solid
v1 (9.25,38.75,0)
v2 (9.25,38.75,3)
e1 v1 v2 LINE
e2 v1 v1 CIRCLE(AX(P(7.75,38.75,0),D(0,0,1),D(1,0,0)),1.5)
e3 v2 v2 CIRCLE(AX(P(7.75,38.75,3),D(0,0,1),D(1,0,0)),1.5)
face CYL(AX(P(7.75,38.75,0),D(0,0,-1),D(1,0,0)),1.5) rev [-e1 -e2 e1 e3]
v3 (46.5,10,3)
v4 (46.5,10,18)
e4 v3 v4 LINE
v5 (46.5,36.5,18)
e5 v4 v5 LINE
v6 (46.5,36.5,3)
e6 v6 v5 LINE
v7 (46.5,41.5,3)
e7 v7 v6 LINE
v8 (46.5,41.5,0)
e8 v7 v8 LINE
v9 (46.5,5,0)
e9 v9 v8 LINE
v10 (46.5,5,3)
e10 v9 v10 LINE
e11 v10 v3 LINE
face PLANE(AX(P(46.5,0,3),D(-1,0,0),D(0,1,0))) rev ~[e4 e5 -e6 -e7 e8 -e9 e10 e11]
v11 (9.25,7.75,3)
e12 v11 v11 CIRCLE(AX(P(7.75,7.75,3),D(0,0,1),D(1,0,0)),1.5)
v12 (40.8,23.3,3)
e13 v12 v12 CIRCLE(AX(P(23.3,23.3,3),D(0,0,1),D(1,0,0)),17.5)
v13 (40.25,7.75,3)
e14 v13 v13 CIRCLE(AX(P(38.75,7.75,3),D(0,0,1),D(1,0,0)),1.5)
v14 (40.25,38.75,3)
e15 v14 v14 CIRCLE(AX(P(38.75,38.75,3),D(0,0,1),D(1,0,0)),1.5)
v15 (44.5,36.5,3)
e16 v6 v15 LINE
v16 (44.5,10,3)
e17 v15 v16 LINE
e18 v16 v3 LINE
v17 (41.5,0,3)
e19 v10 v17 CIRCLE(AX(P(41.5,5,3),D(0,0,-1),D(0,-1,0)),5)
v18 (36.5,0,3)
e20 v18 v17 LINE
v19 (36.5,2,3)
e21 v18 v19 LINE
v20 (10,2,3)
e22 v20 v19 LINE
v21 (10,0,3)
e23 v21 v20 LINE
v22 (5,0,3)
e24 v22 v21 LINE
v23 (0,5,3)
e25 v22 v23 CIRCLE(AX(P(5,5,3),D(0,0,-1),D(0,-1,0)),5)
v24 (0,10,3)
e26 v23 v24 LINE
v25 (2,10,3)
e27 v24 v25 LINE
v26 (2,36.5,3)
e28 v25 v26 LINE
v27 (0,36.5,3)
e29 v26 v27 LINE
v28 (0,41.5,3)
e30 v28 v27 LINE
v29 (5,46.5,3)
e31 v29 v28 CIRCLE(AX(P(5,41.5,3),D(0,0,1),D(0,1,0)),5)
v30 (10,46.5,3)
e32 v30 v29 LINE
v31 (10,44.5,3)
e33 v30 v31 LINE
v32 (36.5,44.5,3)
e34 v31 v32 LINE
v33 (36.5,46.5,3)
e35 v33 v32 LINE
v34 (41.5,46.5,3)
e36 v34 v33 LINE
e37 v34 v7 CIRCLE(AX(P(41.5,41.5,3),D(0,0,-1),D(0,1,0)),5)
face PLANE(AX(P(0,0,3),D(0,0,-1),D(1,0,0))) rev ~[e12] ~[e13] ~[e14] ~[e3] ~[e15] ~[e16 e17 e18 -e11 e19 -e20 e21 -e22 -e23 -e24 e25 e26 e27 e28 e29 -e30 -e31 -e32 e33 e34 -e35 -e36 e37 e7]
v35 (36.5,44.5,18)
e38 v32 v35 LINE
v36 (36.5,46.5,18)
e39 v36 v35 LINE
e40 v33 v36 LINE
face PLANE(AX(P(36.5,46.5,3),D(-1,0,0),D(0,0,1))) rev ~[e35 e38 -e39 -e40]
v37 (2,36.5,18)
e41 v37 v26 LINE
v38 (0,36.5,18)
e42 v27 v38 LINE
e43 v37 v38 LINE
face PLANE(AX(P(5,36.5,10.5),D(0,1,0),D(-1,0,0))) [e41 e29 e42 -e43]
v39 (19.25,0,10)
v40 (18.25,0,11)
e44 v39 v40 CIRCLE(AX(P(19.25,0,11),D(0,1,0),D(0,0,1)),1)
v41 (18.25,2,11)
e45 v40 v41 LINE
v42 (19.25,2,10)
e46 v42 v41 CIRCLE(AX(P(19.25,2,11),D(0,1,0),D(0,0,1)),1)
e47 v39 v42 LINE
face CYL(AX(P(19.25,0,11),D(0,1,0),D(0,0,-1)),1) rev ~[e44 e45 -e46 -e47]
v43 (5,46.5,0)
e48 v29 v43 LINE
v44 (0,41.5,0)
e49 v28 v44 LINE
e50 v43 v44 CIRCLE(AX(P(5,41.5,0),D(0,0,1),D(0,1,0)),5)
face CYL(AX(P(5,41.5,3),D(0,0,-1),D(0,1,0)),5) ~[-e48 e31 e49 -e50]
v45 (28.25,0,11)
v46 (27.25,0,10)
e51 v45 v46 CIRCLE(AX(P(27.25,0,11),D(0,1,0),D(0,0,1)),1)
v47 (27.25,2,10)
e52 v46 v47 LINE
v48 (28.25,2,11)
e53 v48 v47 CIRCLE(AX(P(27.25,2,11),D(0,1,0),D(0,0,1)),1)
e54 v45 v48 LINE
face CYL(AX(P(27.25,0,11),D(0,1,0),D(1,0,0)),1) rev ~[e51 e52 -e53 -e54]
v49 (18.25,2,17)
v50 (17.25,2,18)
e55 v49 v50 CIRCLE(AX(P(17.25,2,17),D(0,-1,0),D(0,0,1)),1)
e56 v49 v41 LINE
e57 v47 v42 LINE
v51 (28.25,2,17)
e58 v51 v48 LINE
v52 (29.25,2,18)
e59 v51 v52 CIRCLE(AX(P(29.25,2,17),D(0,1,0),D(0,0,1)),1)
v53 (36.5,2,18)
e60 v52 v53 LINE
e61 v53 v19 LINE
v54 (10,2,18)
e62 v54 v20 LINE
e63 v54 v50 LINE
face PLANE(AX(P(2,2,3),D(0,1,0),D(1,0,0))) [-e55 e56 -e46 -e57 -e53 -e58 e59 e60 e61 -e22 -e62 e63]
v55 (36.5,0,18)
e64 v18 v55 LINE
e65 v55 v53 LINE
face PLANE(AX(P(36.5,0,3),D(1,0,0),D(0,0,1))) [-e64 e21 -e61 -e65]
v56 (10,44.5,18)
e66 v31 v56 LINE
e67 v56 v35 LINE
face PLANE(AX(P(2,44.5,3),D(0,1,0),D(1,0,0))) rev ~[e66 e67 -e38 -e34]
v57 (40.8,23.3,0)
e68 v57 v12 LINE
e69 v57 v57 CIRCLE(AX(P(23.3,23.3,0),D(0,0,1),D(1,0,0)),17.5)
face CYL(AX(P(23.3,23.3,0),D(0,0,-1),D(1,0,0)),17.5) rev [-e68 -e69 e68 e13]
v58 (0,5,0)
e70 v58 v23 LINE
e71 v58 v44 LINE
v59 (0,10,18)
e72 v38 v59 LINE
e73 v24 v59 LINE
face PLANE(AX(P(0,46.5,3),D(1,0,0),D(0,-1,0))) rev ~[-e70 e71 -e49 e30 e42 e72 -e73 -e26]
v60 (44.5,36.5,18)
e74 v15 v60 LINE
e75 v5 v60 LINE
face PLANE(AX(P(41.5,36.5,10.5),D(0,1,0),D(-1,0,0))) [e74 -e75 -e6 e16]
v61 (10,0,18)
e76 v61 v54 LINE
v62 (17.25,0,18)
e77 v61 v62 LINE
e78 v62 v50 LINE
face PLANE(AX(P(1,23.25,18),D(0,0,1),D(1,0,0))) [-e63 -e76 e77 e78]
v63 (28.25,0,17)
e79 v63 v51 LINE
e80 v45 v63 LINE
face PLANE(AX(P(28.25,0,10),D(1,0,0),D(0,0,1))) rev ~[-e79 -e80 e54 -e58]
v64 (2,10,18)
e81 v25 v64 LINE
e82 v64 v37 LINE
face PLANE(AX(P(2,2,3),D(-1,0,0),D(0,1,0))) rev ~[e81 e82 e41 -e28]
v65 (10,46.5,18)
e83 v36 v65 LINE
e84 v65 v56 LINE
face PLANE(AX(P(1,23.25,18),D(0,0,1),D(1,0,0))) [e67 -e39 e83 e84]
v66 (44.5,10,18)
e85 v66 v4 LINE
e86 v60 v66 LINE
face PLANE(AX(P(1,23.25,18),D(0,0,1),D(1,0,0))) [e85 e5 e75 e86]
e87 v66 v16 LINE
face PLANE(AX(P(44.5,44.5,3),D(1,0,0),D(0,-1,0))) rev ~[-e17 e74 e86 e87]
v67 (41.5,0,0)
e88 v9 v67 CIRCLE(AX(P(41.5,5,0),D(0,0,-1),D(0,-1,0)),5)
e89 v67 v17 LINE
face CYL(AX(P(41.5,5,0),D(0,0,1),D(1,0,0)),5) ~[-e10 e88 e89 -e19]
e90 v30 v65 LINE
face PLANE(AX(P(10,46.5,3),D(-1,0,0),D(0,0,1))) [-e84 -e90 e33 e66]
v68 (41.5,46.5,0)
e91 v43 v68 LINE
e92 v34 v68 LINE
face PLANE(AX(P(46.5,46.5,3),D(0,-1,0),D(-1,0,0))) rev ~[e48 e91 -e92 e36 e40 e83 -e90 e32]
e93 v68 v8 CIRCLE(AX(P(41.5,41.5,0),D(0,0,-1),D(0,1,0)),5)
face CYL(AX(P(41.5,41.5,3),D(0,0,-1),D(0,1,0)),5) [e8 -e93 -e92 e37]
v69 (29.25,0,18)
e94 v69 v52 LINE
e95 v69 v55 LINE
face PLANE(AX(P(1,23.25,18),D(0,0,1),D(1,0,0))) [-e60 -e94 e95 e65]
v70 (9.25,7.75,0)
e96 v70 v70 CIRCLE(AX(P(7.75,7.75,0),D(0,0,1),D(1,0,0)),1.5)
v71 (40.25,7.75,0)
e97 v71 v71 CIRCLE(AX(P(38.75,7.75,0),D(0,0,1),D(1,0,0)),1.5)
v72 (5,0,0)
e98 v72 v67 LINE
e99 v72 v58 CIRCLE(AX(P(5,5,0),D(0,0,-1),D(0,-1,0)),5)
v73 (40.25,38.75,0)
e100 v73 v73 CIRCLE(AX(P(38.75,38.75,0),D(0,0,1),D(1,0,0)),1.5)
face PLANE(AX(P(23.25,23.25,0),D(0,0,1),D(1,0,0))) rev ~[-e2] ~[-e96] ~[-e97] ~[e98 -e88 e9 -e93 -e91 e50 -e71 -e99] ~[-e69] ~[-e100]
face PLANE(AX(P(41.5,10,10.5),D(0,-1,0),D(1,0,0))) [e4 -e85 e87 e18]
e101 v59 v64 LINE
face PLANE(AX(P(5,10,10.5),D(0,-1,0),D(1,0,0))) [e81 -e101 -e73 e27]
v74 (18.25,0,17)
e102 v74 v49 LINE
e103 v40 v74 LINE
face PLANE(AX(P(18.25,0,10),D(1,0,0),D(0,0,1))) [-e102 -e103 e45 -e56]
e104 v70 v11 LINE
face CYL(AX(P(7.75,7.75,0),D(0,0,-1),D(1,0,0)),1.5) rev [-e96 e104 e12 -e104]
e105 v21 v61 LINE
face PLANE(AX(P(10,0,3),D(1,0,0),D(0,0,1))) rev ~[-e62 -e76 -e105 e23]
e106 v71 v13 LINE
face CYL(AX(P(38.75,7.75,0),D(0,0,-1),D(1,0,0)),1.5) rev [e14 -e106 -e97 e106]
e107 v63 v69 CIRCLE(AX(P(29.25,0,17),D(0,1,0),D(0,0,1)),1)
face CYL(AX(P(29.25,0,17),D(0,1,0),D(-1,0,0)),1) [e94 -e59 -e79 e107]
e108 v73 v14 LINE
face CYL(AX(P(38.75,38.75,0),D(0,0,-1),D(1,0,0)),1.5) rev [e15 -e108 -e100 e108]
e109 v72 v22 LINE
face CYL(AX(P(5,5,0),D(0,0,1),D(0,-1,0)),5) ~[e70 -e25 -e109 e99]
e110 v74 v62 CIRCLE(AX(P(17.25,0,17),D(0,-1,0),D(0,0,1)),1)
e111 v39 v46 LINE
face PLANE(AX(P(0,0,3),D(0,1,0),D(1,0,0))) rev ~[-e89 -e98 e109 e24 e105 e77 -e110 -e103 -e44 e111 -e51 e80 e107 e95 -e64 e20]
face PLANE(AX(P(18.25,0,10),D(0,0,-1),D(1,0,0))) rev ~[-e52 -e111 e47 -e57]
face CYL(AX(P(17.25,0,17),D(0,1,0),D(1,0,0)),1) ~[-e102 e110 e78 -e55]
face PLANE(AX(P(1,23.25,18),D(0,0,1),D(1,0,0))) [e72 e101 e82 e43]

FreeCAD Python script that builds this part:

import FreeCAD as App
import Part
import Sketcher
from FreeCAD import Vector


def edges_at(feature, points):
    """Names of the edges that pass closest to the given points."""
    edges = feature.Shape.Edges
    near = lambda p: min(range(len(edges)), key=lambda i: edges[i].distToShape(Part.Vertex(*p))[0])
    return sorted({f"Edge{near(p) + 1}" for p in points})

doc = App.newDocument("Part")
params = doc.addObject("Spreadsheet::Sheet", "Params")
for row, (alias, value) in enumerate([
    ("sketch1_diameter", "3 mm"),
    ("sketch1_diameter2", "35 mm"),
    ("sketch1_width", "46.5 mm"),
    ("pad1_length", "3 mm"),
    ("sketch2_width", "46.5 mm"),
    ("sketch2_width2", "42.5 mm"),
    ("pad2_length", "15 mm"),
    ("sketch3_width", "10 mm"),
    ("sketch3_height", "15 mm"),
    ("pocket1_length", "10 mm"),
    ("sketch4_width", "10 mm"),
    ("sketch4_height", "15 mm"),
    ("pocket2_length", "10 mm"),
    ("sketch5_width", "10 mm"),
    ("sketch5_height", "15 mm"),
    ("pocket3_length", "10 mm"),
    ("sketch6_width", "10 mm"),
    ("sketch6_height", "15 mm"),
    ("pocket4_length", "10 mm"),
    ("fillet_radius", "5 mm"),
    ("fillet2_radius", "5 mm"),
    ("fillet3_radius", "5 mm"),
    ("fillet4_radius", "5 mm"),
    ("sketch7_width", "10 mm"),
    ("sketch7_height", "8 mm"),
    ("pocket5_length", "25 mm"),
    ("fillet5_radius", "1 mm"),
    ("fillet6_radius", "1 mm"),
], start=1):
    params.set(f"A{row}", alias)
    params.set(f"B{row}", "=" + value)
    params.setAlias(f"B{row}", alias)

body = doc.addObject("PartDesign::Body", "Body")

# Sketch on XY plane
sketch1 = doc.addObject("Sketcher::SketchObject", "Sketch")
body.addObject(sketch1)
sketch1.AttachmentSupport = (doc.XY_Plane, [""])
sketch1.MapMode = "FlatFace"
sketch1.addGeometry([
    Part.LineSegment(Vector(0, 46.5, 0), Vector(0, 0, 0)),  # 0
    Part.LineSegment(Vector(0, 0, 0), Vector(46.5, 0, 0)),  # 1
    Part.LineSegment(Vector(46.5, 0, 0), Vector(46.5, 46.5, 0)),  # 2
    Part.LineSegment(Vector(46.5, 46.5, 0), Vector(0, 46.5, 0)),  # 3
    Part.Circle(Vector(7.75, 7.75, 0), Vector(0, 0, 1), 1.5),  # 4
    Part.Circle(Vector(38.75, 7.75, 0), Vector(0, 0, 1), 1.5),  # 5
    Part.Circle(Vector(7.75, 38.75, 0), Vector(0, 0, 1), 1.5),  # 6
    Part.Circle(Vector(23.3, 23.3, 0), Vector(0, 0, 1), 17.5),  # 7
    Part.Circle(Vector(38.75, 38.75, 0), Vector(0, 0, 1), 1.5),  # 8
], False)
sketch1.addConstraint([
    Sketcher.Constraint("Coincident", 0, 2, 1, 1),
    Sketcher.Constraint("Coincident", 1, 2, 2, 1),
    Sketcher.Constraint("Coincident", 2, 2, 3, 1),
    Sketcher.Constraint("Coincident", 3, 2, 0, 1),
    Sketcher.Constraint("Vertical", 0),
    Sketcher.Constraint("Horizontal", 1),
    Sketcher.Constraint("Vertical", 2),
    Sketcher.Constraint("Horizontal", 3),
    Sketcher.Constraint("Coincident", 0, 2, -1, 1),
    Sketcher.Constraint("Equal", 4, 5),
    Sketcher.Constraint("Equal", 5, 6),
    Sketcher.Constraint("Equal", 6, 8),
    Sketcher.Constraint("Horizontal", 4, 3, 5, 3),
    Sketcher.Constraint("Horizontal", 6, 3, 8, 3),
    Sketcher.Constraint("Vertical", 4, 3, 6, 3),
    Sketcher.Constraint("Vertical", 5, 3, 8, 3),
    Sketcher.Constraint("Equal", 3, 0),
    Sketcher.Constraint("Diameter", 4, 3.0),
    Sketcher.Constraint("Diameter", 7, 35.0),
    Sketcher.Constraint("DistanceX", 1, 1, 1, 2, 46.5),
    Sketcher.Constraint("DistanceX", 4, 3, 5, 3, 31.0),
    Sketcher.Constraint("DistanceY", 4, 3, 6, 3, 31.0),
    Sketcher.Constraint("DistanceX", -1, 1, 7, 3, 23.3),
    Sketcher.Constraint("DistanceY", -1, 1, 7, 3, 23.3),
    Sketcher.Constraint("DistanceX", -1, 1, 4, 3, 7.75),
    Sketcher.Constraint("DistanceY", -1, 1, 4, 3, 7.75),
])
sketch1.setExpression("Constraints[17]", "Params.sketch1_diameter")
sketch1.setExpression("Constraints[18]", "Params.sketch1_diameter2")
sketch1.setExpression("Constraints[19]", "Params.sketch1_width")
pad1 = doc.addObject("PartDesign::Pad", "Pad")
body.addObject(pad1)
pad1.Profile = sketch1
pad1.setExpression("Length", "Params.pad1_length")

# Sketch on XY plane
sketch2 = doc.addObject("Sketcher::SketchObject", "Sketch001")
body.addObject(sketch2)
sketch2.AttachmentSupport = (doc.XY_Plane, [""])
sketch2.MapMode = "FlatFace"
sketch2.AttachmentOffset = App.Placement(Vector(0, 0, 3), App.Rotation())
sketch2.addGeometry([
    Part.LineSegment(Vector(0, 46.5, 0), Vector(0, 0, 0)),  # 0
    Part.LineSegment(Vector(0, 0, 0), Vector(46.5, 0, 0)),  # 1
    Part.LineSegment(Vector(46.5, 0, 0), Vector(46.5, 46.5, 0)),  # 2
    Part.LineSegment(Vector(46.5, 46.5, 0), Vector(0, 46.5, 0)),  # 3
    Part.LineSegment(Vector(2, 2, 0), Vector(2, 44.5, 0)),  # 4
    Part.LineSegment(Vector(2, 44.5, 0), Vector(44.5, 44.5, 0)),  # 5
    Part.LineSegment(Vector(44.5, 44.5, 0), Vector(44.5, 2, 0)),  # 6
    Part.LineSegment(Vector(44.5, 2, 0), Vector(2, 2, 0)),  # 7
], False)
sketch2.addConstraint([
    Sketcher.Constraint("Coincident", 0, 2, 1, 1),
    Sketcher.Constraint("Coincident", 1, 2, 2, 1),
    Sketcher.Constraint("Coincident", 2, 2, 3, 1),
    Sketcher.Constraint("Coincident", 3, 2, 0, 1),
    Sketcher.Constraint("Coincident", 4, 2, 5, 1),
    Sketcher.Constraint("Coincident", 5, 2, 6, 1),
    Sketcher.Constraint("Coincident", 6, 2, 7, 1),
    Sketcher.Constraint("Coincident", 7, 2, 4, 1),
    Sketcher.Constraint("Vertical", 0),
    Sketcher.Constraint("Horizontal", 1),
    Sketcher.Constraint("Vertical", 2),
    Sketcher.Constraint("Horizontal", 3),
    Sketcher.Constraint("Vertical", 4),
    Sketcher.Constraint("Horizontal", 5),
    Sketcher.Constraint("Vertical", 6),
    Sketcher.Constraint("Horizontal", 7),
    Sketcher.Constraint("Coincident", 0, 2, -1, 1),
    Sketcher.Constraint("Equal", 3, 0),
    Sketcher.Constraint("Equal", 7, 4),
    Sketcher.Constraint("DistanceX", 1, 1, 1, 2, 46.5),
    Sketcher.Constraint("DistanceX", 5, 1, 5, 2, 42.5),
    Sketcher.Constraint("DistanceX", -1, 1, 4, 2, 2.0),
    Sketcher.Constraint("DistanceY", -1, 1, 6, 2, 2.0),
])
sketch2.setExpression("Constraints[19]", "Params.sketch2_width")
sketch2.setExpression("Constraints[20]", "Params.sketch2_width2")
pad2 = doc.addObject("PartDesign::Pad", "Pad001")
body.addObject(pad2)
pad2.Profile = sketch2
pad2.setExpression("Length", "Params.pad2_length")

# Sketch on XZ plane
sketch3 = doc.addObject("Sketcher::SketchObject", "Sketch002")
body.addObject(sketch3)
sketch3.AttachmentSupport = (doc.XZ_Plane, [""])
sketch3.MapMode = "FlatFace"
sketch3.addGeometry([
    Part.LineSegment(Vector(0, 18, 0), Vector(0, 3, 0)),
    Part.LineSegment(Vector(0, 3, 0), Vector(10, 3, 0)),
    Part.LineSegment(Vector(10, 3, 0), Vector(10, 18, 0)),
    Part.LineSegment(Vector(10, 18, 0), Vector(0, 18, 0)),
], False)
sketch3.addConstraint([
    Sketcher.Constraint("Coincident", 0, 2, 1, 1),
    Sketcher.Constraint("Coincident", 1, 2, 2, 1),
    Sketcher.Constraint("Coincident", 2, 2, 3, 1),
    Sketcher.Constraint("Coincident", 3, 2, 0, 1),
    Sketcher.Constraint("Vertical", 0),
    Sketcher.Constraint("Horizontal", 1),
    Sketcher.Constraint("Vertical", 2),
    Sketcher.Constraint("Horizontal", 3),
    Sketcher.Constraint("PointOnObject", 0, 2, -2),
    Sketcher.Constraint("DistanceX", 1, 1, 1, 2, 10.0),
    Sketcher.Constraint("DistanceY", 0, 2, 0, 1, 15.0),
    Sketcher.Constraint("DistanceY", -1, 1, 0, 2, 3.0),
])
sketch3.setExpression("Constraints[9]", "Params.sketch3_width")
sketch3.setExpression("Constraints[10]", "Params.sketch3_height")
pocket1 = doc.addObject("PartDesign::Pocket", "Pocket")
body.addObject(pocket1)
pocket1.Profile = sketch3
pocket1.setExpression("Length", "Params.pocket1_length")

# Sketch on XZ plane
sketch4 = doc.addObject("Sketcher::SketchObject", "Sketch003")
body.addObject(sketch4)
sketch4.AttachmentSupport = (doc.XZ_Plane, [""])
sketch4.MapMode = "FlatFace"
sketch4.AttachmentOffset = App.Placement(Vector(0, 0, -46.5), App.Rotation())
sketch4.addGeometry([
    Part.LineSegment(Vector(10, 18, 0), Vector(10, 3, 0)),
    Part.LineSegment(Vector(10, 3, 0), Vector(0, 3, 0)),
    Part.LineSegment(Vector(0, 3, 0), Vector(0, 18, 0)),
    Part.LineSegment(Vector(0, 18, 0), Vector(10, 18, 0)),
], False)
sketch4.addConstraint([
    Sketcher.Constraint("Coincident", 0, 2, 1, 1),
    Sketcher.Constraint("Coincident", 1, 2, 2, 1),
    Sketcher.Constraint("Coincident", 2, 2, 3, 1),
    Sketcher.Constraint("Coincident", 3, 2, 0, 1),
    Sketcher.Constraint("Vertical", 0),
    Sketcher.Constraint("Horizontal", 1),
    Sketcher.Constraint("Vertical", 2),
    Sketcher.Constraint("Horizontal", 3),
    Sketcher.Constraint("PointOnObject", 1, 2, -2),
    Sketcher.Constraint("DistanceX", 1, 2, 1, 1, 10.0),
    Sketcher.Constraint("DistanceY", 0, 2, 0, 1, 15.0),
    Sketcher.Constraint("DistanceY", -1, 1, 0, 2, 3.0),
])
sketch4.setExpression("Constraints[9]", "Params.sketch4_width")
sketch4.setExpression("Constraints[10]", "Params.sketch4_height")
pocket2 = doc.addObject("PartDesign::Pocket", "Pocket001")
body.addObject(pocket2)
pocket2.Profile = sketch4
pocket2.setExpression("Length", "Params.pocket2_length")
pocket2.Reversed = True

# Sketch on XZ plane
sketch5 = doc.addObject("Sketcher::SketchObject", "Sketch004")
body.addObject(sketch5)
sketch5.AttachmentSupport = (doc.XZ_Plane, [""])
sketch5.MapMode = "FlatFace"
sketch5.AttachmentOffset = App.Placement(Vector(0, 0, -46.5), App.Rotation())
sketch5.addGeometry([
    Part.LineSegment(Vector(46.5, 18, 0), Vector(46.5, 3, 0)),
    Part.LineSegment(Vector(46.5, 3, 0), Vector(36.5, 3, 0)),
    Part.LineSegment(Vector(36.5, 3, 0), Vector(36.5, 18, 0)),
    Part.LineSegment(Vector(36.5, 18, 0), Vector(46.5, 18, 0)),
], False)
sketch5.addConstraint([
    Sketcher.Constraint("Coincident", 0, 2, 1, 1),
    Sketcher.Constraint("Coincident", 1, 2, 2, 1),
    Sketcher.Constraint("Coincident", 2, 2, 3, 1),
    Sketcher.Constraint("Coincident", 3, 2, 0, 1),
    Sketcher.Constraint("Vertical", 0),
    Sketcher.Constraint("Horizontal", 1),
    Sketcher.Constraint("Vertical", 2),
    Sketcher.Constraint("Horizontal", 3),
    Sketcher.Constraint("DistanceX", 1, 2, 1, 1, 10.0),
    Sketcher.Constraint("DistanceY", 0, 2, 0, 1, 15.0),
    Sketcher.Constraint("DistanceY", -1, 1, 0, 2, 3.0),
    Sketcher.Constraint("DistanceX", -1, 1, 0, 2, 46.5),
])
sketch5.setExpression("Constraints[8]", "Params.sketch5_width")
sketch5.setExpression("Constraints[9]", "Params.sketch5_height")
pocket3 = doc.addObject("PartDesign::Pocket", "Pocket002")
body.addObject(pocket3)
pocket3.Profile = sketch5
pocket3.setExpression("Length", "Params.pocket3_length")
pocket3.Reversed = True

# Sketch on XZ plane
sketch6 = doc.addObject("Sketcher::SketchObject", "Sketch005")
body.addObject(sketch6)
sketch6.AttachmentSupport = (doc.XZ_Plane, [""])
sketch6.MapMode = "FlatFace"
sketch6.addGeometry([
    Part.LineSegment(Vector(36.5, 18, 0), Vector(36.5, 3, 0)),
    Part.LineSegment(Vector(36.5, 3, 0), Vector(46.5, 3, 0)),
    Part.LineSegment(Vector(46.5, 3, 0), Vector(46.5, 18, 0)),
    Part.LineSegment(Vector(46.5, 18, 0), Vector(36.5, 18, 0)),
], False)
sketch6.addConstraint([
    Sketcher.Constraint("Coincident", 0, 2, 1, 1),
    Sketcher.Constraint("Coincident", 1, 2, 2, 1),
    Sketcher.Constraint("Coincident", 2, 2, 3, 1),
    Sketcher.Constraint("Coincident", 3, 2, 0, 1),
    Sketcher.Constraint("Vertical", 0),
    Sketcher.Constraint("Horizontal", 1),
    Sketcher.Constraint("Vertical", 2),
    Sketcher.Constraint("Horizontal", 3),
    Sketcher.Constraint("DistanceX", 1, 1, 1, 2, 10.0),
    Sketcher.Constraint("DistanceY", 0, 2, 0, 1, 15.0),
    Sketcher.Constraint("DistanceY", -1, 1, 0, 2, 3.0),
    Sketcher.Constraint("DistanceX", -1, 1, 0, 2, 36.5),
])
sketch6.setExpression("Constraints[8]", "Params.sketch6_width")
sketch6.setExpression("Constraints[9]", "Params.sketch6_height")
pocket4 = doc.addObject("PartDesign::Pocket", "Pocket003")
body.addObject(pocket4)
pocket4.Profile = sketch6
pocket4.setExpression("Length", "Params.pocket4_length")
doc.recompute()

fillet = doc.addObject("PartDesign::Fillet", "Fillet")
body.addObject(fillet)
fillet.Base = (pocket4, edges_at(pocket4, [(46.5, 46.5, 1.5)]))
fillet.setExpression("Radius", "Params.fillet_radius")
doc.recompute()

fillet2 = doc.addObject("PartDesign::Fillet", "Fillet001")
body.addObject(fillet2)
fillet2.Base = (fillet, edges_at(fillet, [(0, 46.5, 1.5)]))
fillet2.setExpression("Radius", "Params.fillet2_radius")
doc.recompute()

fillet3 = doc.addObject("PartDesign::Fillet", "Fillet002")
body.addObject(fillet3)
fillet3.Base = (fillet2, edges_at(fillet2, [(46.5, 0, 1.5)]))
fillet3.setExpression("Radius", "Params.fillet3_radius")
doc.recompute()

fillet4 = doc.addObject("PartDesign::Fillet", "Fillet003")
body.addObject(fillet4)
fillet4.Base = (fillet3, edges_at(fillet3, [(0, 0, 1.5)]))
fillet4.setExpression("Radius", "Params.fillet4_radius")

# Sketch on XZ plane
sketch7 = doc.addObject("Sketcher::SketchObject", "Sketch006")
body.addObject(sketch7)
sketch7.AttachmentSupport = (doc.XZ_Plane, [""])
sketch7.MapMode = "FlatFace"
sketch7.addGeometry([
    Part.LineSegment(Vector(18.25, 18, 0), Vector(18.25, 10, 0)),
    Part.LineSegment(Vector(18.25, 10, 0), Vector(28.25, 10, 0)),
    Part.LineSegment(Vector(28.25, 10, 0), Vector(28.25, 18, 0)),
    Part.LineSegment(Vector(28.25, 18, 0), Vector(18.25, 18, 0)),
], False)
sketch7.addConstraint([
    Sketcher.Constraint("Coincident", 0, 2, 1, 1),
    Sketcher.Constraint("Coincident", 1, 2, 2, 1),
    Sketcher.Constraint("Coincident", 2, 2, 3, 1),
    Sketcher.Constraint("Coincident", 3, 2, 0, 1),
    Sketcher.Constraint("Vertical", 0),
    Sketcher.Constraint("Horizontal", 1),
    Sketcher.Constraint("Vertical", 2),
    Sketcher.Constraint("Horizontal", 3),
    Sketcher.Constraint("DistanceX", 1, 1, 1, 2, 10.0),
    Sketcher.Constraint("DistanceY", 0, 2, 0, 1, 8.0),
    Sketcher.Constraint("DistanceY", -1, 1, 0, 2, 10.0),
    Sketcher.Constraint("DistanceX", -1, 1, 0, 2, 18.25),
])
sketch7.setExpression("Constraints[8]", "Params.sketch7_width")
sketch7.setExpression("Constraints[9]", "Params.sketch7_height")
pocket5 = doc.addObject("PartDesign::Pocket", "Pocket004")
body.addObject(pocket5)
pocket5.Profile = sketch7
pocket5.setExpression("Length", "Params.pocket5_length")
doc.recompute()

fillet5 = doc.addObject("PartDesign::Fillet", "Fillet004")
body.addObject(fillet5)
fillet5.Base = (pocket5, edges_at(pocket5, [(28.25, 1, 10), (18.25, 1, 10)]))
fillet5.setExpression("Radius", "Params.fillet5_radius")
doc.recompute()

fillet6 = doc.addObject("PartDesign::Fillet", "Fillet005")
body.addObject(fillet6)
fillet6.Base = (fillet5, edges_at(fillet5, [(18.25, 1, 18), (28.25, 1, 18)]))
fillet6.setExpression("Radius", "Params.fillet6_radius")

doc.recompute()
